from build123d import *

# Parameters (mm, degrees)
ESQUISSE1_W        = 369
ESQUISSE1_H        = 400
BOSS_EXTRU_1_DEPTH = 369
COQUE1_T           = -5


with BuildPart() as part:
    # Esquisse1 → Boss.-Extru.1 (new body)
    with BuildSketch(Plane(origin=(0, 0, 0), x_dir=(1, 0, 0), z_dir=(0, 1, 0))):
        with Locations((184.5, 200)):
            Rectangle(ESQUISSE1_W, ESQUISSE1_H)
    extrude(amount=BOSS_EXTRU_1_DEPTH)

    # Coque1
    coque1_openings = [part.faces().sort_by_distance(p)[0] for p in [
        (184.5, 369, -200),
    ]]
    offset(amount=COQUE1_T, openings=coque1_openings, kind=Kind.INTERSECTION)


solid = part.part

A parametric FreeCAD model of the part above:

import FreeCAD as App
import Part
import Sketcher


def faces_at(feature, points):
    """Names of the faces that lie closest to the given points."""
    faces = feature.Shape.Faces
    near = lambda p: min(range(len(faces)), key=lambda i: faces[i].distToShape(Part.Vertex(*p))[0])
    return sorted({f"Face{near(p) + 1}" for p in points})


def add_polygon(sketch, points):
    """Adds a closed chain of lines whose ends are joined by coincident constraints."""
    first, n = sketch.GeometryCount, len(points)
    for a, b in zip(points, points[1:] + points[:1]):
        sketch.addGeometry(Part.LineSegment(App.Vector(*a, 0), App.Vector(*b, 0)), False)
    for i in range(n):
        sketch.addConstraint(Sketcher.Constraint("Coincident", first + i, 2, first + (i + 1) % n, 1))

doc = App.newDocument("Part")
body = doc.addObject("PartDesign::Body", "Body")

# Sketch on XZ plane
sketch1 = doc.addObject("Sketcher::SketchObject", "Sketch")
body.addObject(sketch1)
sketch1.AttachmentSupport = (doc.XZ_Plane, [""])
sketch1.MapMode = "FlatFace"
add_polygon(sketch1, [(0, -400), (0, 0), (369, 0), (369, -400)])  # lines 0-3
sketch1.addConstraint([
    Sketcher.Constraint("Vertical", 0),
    Sketcher.Constraint("Horizontal", 1),
    Sketcher.Constraint("Vertical", 2),
    Sketcher.Constraint("Horizontal", 3),
    Sketcher.Constraint("Coincident", 0, 2, -1, 1),
    Sketcher.Constraint("DistanceX", 1, 1, 1, 2, 369.0),
    Sketcher.Constraint("DistanceY", 0, 1, 0, 2, 400.0),
])
pad1 = doc.addObject("PartDesign::Pad", "Pad")
body.addObject(pad1)
pad1.Profile = sketch1
pad1.Length = 369
pad1.Reversed = True
doc.recompute()

thickness = doc.addObject("PartDesign::Thickness", "Thickness")
body.addObject(thickness)
thickness.Base = (pad1, faces_at(pad1, [(184.5, 369, -200)]))
thickness.Value = 5
thickness.Reversed = True
thickness.Join = "Intersection"

doc.recompute()
